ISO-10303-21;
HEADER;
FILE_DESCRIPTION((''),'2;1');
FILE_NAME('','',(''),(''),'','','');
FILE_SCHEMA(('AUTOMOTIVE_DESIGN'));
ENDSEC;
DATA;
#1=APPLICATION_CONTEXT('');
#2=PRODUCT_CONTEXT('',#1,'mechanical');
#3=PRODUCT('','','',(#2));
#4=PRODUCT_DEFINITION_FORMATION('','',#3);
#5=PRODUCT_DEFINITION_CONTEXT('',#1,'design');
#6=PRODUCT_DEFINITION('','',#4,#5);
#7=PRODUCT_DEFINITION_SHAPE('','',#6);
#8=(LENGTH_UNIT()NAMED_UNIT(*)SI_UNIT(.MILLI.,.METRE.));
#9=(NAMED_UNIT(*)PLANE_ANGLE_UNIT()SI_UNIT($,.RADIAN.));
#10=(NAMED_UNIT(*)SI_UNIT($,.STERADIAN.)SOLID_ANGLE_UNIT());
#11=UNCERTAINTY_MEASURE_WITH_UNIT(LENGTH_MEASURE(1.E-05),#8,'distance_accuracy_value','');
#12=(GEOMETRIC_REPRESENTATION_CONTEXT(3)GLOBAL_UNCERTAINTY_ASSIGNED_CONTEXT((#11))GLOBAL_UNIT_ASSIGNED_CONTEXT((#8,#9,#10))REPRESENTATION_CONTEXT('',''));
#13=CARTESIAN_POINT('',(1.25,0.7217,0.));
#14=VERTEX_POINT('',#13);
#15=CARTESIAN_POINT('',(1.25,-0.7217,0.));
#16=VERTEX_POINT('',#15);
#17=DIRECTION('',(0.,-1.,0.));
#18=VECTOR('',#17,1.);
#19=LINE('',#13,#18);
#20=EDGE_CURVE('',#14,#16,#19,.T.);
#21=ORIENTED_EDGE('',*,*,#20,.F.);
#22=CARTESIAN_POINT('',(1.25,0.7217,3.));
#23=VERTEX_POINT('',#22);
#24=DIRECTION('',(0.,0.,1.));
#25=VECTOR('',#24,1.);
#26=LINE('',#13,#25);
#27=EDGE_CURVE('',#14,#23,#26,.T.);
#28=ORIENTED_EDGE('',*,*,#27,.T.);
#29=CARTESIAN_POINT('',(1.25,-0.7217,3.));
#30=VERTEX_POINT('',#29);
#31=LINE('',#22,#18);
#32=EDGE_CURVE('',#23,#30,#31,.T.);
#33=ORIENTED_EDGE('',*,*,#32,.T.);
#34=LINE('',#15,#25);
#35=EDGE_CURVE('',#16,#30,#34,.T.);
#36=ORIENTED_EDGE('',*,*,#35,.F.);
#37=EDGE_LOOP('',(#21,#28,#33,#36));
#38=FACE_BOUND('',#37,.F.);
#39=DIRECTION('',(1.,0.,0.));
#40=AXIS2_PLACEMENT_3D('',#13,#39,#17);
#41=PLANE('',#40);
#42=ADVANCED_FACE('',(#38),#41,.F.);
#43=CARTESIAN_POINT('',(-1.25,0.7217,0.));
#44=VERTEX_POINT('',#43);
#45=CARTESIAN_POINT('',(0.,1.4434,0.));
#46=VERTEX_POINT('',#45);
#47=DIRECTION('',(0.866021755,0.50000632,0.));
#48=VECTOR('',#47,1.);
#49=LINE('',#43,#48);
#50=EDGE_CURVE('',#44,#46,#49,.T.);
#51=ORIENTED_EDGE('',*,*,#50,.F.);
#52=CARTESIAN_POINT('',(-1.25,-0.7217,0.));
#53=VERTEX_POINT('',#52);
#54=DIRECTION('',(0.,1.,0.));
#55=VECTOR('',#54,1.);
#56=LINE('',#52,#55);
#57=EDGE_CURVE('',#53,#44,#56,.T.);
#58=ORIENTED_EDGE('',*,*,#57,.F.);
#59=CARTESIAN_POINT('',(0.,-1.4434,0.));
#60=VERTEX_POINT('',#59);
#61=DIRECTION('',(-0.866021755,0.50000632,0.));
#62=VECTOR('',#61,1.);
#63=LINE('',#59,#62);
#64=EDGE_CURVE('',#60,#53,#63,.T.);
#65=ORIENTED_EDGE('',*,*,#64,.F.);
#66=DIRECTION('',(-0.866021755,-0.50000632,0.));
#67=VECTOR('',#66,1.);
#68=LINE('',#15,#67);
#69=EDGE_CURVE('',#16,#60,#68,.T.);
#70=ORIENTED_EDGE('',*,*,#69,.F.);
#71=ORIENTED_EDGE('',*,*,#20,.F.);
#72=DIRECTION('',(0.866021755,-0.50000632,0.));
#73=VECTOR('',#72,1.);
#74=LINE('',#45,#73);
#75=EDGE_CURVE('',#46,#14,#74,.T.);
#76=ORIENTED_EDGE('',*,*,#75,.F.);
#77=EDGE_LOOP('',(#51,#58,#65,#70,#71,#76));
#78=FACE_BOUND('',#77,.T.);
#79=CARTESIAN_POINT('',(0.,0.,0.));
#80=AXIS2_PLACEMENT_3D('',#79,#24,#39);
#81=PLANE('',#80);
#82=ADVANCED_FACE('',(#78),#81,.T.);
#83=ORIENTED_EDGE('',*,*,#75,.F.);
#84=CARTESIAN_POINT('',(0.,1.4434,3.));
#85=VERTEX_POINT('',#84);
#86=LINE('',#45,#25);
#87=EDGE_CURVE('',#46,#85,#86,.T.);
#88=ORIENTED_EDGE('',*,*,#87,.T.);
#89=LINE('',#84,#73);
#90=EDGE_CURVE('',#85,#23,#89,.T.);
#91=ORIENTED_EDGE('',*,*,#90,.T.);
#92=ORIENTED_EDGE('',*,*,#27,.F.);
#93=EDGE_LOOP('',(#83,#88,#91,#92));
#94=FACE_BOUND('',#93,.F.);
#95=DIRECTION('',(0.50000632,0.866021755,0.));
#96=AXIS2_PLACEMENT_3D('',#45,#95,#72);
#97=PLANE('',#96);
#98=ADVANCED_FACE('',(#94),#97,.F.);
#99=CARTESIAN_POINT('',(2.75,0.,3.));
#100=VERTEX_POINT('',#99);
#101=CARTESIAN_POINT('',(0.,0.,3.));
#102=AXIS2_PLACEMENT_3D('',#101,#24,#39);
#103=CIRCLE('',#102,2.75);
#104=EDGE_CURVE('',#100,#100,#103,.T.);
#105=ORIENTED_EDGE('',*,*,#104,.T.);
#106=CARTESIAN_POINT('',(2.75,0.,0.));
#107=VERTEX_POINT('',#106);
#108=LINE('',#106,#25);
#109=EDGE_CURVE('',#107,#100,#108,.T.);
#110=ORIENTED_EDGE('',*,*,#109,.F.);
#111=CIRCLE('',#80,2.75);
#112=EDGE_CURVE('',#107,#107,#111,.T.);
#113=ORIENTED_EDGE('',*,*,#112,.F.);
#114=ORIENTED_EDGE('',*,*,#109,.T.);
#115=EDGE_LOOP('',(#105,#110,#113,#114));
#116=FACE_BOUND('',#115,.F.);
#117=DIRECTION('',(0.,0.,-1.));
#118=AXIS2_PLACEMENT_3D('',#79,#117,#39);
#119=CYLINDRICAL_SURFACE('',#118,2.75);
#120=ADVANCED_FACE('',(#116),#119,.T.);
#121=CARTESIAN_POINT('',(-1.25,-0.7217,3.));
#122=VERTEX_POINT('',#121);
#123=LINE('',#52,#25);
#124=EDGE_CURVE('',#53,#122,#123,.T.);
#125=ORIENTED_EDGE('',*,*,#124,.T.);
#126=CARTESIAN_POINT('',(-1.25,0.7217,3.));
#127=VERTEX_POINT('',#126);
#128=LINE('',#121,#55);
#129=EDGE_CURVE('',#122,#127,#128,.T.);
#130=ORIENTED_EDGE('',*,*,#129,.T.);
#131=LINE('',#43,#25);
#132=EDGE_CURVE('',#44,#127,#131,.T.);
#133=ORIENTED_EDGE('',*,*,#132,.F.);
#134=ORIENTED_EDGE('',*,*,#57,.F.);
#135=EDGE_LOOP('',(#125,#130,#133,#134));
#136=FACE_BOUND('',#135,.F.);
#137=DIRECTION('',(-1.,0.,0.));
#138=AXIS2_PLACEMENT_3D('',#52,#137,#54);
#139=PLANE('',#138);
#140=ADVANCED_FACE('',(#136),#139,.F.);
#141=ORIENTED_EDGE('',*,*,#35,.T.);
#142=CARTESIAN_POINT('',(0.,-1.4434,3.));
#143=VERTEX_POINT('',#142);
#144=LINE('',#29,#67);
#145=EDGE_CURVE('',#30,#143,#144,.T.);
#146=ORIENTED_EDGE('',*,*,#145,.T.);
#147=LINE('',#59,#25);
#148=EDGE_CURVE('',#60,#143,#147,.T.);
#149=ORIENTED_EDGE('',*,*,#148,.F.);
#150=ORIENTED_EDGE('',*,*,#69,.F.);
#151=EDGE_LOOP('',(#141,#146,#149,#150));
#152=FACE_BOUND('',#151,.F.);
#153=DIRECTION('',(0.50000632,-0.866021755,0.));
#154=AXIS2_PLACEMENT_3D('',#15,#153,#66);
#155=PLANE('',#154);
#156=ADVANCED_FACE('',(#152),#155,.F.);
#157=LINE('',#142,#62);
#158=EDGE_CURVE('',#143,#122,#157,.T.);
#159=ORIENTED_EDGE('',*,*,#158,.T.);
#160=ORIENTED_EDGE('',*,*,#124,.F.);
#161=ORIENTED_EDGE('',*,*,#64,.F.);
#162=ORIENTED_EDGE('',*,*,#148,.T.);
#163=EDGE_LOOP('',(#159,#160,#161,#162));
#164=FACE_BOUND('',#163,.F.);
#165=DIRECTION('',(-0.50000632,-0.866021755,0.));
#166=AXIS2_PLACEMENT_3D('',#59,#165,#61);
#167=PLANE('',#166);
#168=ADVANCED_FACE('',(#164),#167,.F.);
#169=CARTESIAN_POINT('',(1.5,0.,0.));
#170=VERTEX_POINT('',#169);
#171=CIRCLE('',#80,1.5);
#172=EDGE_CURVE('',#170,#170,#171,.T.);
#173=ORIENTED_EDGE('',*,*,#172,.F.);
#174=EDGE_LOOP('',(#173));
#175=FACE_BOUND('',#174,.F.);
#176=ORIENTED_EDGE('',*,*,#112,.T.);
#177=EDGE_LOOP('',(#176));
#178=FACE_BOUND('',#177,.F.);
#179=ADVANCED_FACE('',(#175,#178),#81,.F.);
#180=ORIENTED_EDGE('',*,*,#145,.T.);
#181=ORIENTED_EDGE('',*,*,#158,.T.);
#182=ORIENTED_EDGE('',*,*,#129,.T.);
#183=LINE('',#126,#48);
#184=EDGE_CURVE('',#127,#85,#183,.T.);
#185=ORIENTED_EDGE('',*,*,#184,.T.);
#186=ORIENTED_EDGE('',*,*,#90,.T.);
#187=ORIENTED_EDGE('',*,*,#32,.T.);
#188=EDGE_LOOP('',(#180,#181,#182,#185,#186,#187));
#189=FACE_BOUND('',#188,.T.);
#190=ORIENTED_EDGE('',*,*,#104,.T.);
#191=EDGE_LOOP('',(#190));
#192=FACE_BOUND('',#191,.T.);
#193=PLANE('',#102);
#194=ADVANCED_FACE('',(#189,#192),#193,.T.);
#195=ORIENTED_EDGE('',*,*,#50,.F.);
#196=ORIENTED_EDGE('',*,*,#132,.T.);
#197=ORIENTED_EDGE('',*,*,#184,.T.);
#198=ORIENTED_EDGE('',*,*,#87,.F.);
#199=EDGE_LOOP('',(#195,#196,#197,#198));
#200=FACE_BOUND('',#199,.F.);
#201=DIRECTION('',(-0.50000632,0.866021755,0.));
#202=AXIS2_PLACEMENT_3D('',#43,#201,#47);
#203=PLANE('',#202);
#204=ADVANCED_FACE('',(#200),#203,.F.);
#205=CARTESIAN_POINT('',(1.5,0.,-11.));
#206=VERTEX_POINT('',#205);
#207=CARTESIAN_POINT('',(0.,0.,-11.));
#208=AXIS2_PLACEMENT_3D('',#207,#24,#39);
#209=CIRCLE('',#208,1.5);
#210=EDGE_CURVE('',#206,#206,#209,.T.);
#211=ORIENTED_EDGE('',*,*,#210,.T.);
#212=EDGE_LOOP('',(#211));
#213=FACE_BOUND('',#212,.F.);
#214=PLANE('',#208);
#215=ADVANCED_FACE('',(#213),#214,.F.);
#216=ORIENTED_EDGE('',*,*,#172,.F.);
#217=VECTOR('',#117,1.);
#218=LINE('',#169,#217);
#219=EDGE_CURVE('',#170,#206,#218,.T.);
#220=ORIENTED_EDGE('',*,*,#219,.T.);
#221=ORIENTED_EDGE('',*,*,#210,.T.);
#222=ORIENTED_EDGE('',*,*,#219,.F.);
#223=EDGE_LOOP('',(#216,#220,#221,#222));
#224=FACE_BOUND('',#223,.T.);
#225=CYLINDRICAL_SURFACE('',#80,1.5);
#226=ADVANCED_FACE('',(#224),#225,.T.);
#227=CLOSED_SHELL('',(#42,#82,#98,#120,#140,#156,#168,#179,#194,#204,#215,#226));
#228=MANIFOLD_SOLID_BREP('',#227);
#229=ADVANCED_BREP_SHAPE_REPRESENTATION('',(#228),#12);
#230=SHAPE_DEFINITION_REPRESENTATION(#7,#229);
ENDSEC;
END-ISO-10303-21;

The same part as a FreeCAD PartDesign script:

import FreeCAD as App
import Part
import Sketcher

V = App.Vector
Q = App.Units.Quantity


def add_polygon(sketch, points):
    """Adds a closed chain of lines whose ends are joined by coincident constraints."""
    first, n = sketch.GeometryCount, len(points)
    for a, b in zip(points, points[1:] + points[:1]):
        sketch.addGeometry(Part.LineSegment(App.Vector(*a, 0), App.Vector(*b, 0)), False)
    for i in range(n):
        sketch.addConstraint(Sketcher.Constraint("Coincident", first + i, 2, first + (i + 1) % n, 1))

doc = App.newDocument("Part")
body = doc.addObject("PartDesign::Body", "Body")

# Sketch on XY plane
sketch1 = body.newObject("Sketcher::SketchObject", "Sketch")
sketch1.AttachmentSupport = (doc.getObject("XY_Plane"), [""])
sketch1.MapMode = "FlatFace"
sketch1.addGeometry(Part.Circle(V(0, 0, 0), V(0, 0, 1), 2.8), False)  # 0
add_polygon(sketch1, [(-1.2, -0.7), (-1.2, 0.7), (0, 1.4), (1.2, 0.7), (1.2, -0.7), (0, -1.4)])  # lines 1-6
sketch1.addConstraint([
    Sketcher.Constraint("Vertical", 1),
    Sketcher.Constraint("Vertical", 4),
    Sketcher.Constraint("Coincident", 0, 3, -1, 1),
    Sketcher.Constraint("Symmetric", 1, 2, 4, 2, -1, 1),
    Sketcher.Constraint("Symmetric", 2, 2, 5, 2, -1, 1),
    Sketcher.Constraint("PointOnObject", 2, 2, -2),
    Sketcher.Constraint("Parallel", 3, 6),
    Sketcher.Constraint("Horizontal", 1, 2, 3, 2),
    Sketcher.Constraint("Diameter", 0, 5.5),
    Sketcher.Constraint("DistanceX", 1, 2, 3, 2, 2.5),
    Sketcher.Constraint("Angle", 2, Q("30.0004 deg")),
    Sketcher.Constraint("DistanceY", 1, 1, 1, 2, 1.4434),
])
pad1 = body.newObject("PartDesign::Pad", "Pad")
pad1.Profile = sketch1
pad1.Length = 3

# Sketch on XY plane
sketch2 = body.newObject("Sketcher::SketchObject", "Sketch001")
sketch2.AttachmentSupport = (doc.getObject("XY_Plane"), [""])
sketch2.MapMode = "FlatFace"
sketch2.addGeometry(Part.Circle(V(0, 0, 0), V(0, 0, 1), 1.5), False)
sketch2.addConstraint([
    Sketcher.Constraint("Coincident", 0, 3, -1, 1),
    Sketcher.Constraint("Diameter", 0, 3.0),
])
pad2 = body.newObject("PartDesign::Pad", "Pad001")
pad2.Profile = sketch2
pad2.Length = 11
pad2.Reversed = True

doc.recompute()
